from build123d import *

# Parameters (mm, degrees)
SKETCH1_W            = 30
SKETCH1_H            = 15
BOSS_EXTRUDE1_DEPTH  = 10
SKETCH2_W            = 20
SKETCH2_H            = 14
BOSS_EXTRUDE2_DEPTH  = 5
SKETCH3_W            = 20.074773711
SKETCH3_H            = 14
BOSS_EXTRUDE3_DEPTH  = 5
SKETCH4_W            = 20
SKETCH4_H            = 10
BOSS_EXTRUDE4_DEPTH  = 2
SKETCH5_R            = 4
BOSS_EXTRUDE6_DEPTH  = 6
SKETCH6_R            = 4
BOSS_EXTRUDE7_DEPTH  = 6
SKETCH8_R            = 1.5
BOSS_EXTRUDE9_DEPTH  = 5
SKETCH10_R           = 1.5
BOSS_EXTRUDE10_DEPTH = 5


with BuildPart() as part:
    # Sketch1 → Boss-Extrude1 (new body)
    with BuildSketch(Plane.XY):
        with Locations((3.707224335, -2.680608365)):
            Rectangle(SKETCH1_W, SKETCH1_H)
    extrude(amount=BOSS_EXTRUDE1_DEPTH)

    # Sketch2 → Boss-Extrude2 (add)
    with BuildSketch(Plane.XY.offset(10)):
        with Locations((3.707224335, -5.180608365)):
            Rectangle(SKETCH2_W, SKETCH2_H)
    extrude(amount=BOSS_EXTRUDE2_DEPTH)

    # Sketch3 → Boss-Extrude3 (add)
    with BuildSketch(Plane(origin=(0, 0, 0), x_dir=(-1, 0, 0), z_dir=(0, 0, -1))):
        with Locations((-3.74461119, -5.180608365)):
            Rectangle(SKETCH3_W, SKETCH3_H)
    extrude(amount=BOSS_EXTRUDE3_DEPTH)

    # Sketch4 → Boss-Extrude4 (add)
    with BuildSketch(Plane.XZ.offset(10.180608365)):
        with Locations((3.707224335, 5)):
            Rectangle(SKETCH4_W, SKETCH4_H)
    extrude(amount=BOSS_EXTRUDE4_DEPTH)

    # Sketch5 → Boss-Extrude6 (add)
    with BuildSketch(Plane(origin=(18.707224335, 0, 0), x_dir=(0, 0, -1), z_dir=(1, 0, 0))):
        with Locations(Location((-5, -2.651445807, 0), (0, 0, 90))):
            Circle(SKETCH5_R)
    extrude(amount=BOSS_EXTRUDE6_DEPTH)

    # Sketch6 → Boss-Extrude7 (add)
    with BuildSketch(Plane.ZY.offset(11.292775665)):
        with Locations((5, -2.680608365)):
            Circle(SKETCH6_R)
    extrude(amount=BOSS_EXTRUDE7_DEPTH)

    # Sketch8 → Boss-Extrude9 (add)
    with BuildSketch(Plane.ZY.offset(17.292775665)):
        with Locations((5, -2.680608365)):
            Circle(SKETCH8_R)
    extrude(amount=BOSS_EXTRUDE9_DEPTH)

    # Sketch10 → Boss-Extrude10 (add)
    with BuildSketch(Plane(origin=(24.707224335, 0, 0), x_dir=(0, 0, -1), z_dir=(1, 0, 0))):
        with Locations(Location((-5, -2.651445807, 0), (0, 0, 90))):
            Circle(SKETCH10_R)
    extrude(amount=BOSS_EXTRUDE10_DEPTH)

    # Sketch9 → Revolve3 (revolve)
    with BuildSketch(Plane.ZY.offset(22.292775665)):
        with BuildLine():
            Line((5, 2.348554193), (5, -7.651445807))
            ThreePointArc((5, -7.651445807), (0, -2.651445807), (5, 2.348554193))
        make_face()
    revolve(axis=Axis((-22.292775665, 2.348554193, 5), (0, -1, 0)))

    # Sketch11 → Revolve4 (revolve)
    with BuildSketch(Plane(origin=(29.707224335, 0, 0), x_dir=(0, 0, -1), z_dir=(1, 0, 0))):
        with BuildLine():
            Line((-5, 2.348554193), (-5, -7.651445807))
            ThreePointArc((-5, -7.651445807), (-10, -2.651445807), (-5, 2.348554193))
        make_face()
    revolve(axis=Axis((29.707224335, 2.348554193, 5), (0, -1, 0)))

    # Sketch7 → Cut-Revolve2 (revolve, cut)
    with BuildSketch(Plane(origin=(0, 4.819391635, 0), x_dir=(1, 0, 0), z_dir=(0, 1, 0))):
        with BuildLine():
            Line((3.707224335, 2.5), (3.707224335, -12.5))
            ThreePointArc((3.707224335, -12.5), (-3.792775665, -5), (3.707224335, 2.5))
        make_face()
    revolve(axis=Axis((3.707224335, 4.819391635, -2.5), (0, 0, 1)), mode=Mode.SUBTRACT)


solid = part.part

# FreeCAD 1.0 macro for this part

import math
import FreeCAD as App
import Part
import Sketcher

V = App.Vector


def add_polygon(sketch, points):
    """Adds a closed chain of lines whose ends are joined by coincident constraints."""
    first, n = sketch.GeometryCount, len(points)
    for a, b in zip(points, points[1:] + points[:1]):
        sketch.addGeometry(Part.LineSegment(App.Vector(*a, 0), App.Vector(*b, 0)), False)
    for i in range(n):
        sketch.addConstraint(Sketcher.Constraint("Coincident", first + i, 2, first + (i + 1) % n, 1))

doc = App.newDocument("Part")
params = doc.addObject("Spreadsheet::Sheet", "Params")
for row, (alias, value) in enumerate([
    ("sketch1_width", "30 mm"),
    ("sketch1_height", "15 mm"),
    ("pad1_length", "10 mm"),
    ("sketch2_width", "20 mm"),
    ("sketch2_height", "14 mm"),
    ("pad2_length", "5 mm"),
    ("sketch3_height", "14 mm"),
    ("pad3_length", "5 mm"),
    ("sketch4_width", "20 mm"),
    ("sketch4_height", "10 mm"),
    ("pad4_length", "2 mm"),
    ("sketch5_diameter", "8 mm"),
    ("pad5_length", "6 mm"),
    ("sketch6_diameter", "8 mm"),
    ("pad6_length", "6 mm"),
    ("sketch7_diameter", "3 mm"),
    ("pad7_length", "5 mm"),
    ("sketch8_diameter", "3 mm"),
    ("pad8_length", "5 mm"),
    ("sketch9_radius", "5 mm"),
    ("revolution_angle", "360 deg"),
    ("sketch10_radius", "5 mm"),
    ("revolution2_angle", "360 deg"),
    ("sketch11_radius", "7.5 mm"),
    ("groove_angle", "360 deg"),
], start=1):
    params.set(f"A{row}", alias)
    params.set(f"B{row}", "=" + value)
    params.setAlias(f"B{row}", alias)

body = doc.addObject("PartDesign::Body", "Body")

# Sketch on XY plane
sketch1 = body.newObject("Sketcher::SketchObject", "Sketch")
sketch1.AttachmentSupport = (doc.getObject("XY_Plane"), [""])
sketch1.MapMode = "FlatFace"
add_polygon(sketch1, [(-11.292776, 4.819392), (-11.292776, -10.180608), (18.707224, -10.180608), (18.707224, 4.819392)])  # lines 0-3
sketch1.addConstraint(Sketcher.Constraint("Vertical", 0))
sketch1.addConstraint(Sketcher.Constraint("Horizontal", 1))
sketch1.addConstraint(Sketcher.Constraint("Vertical", 2))
sketch1.addConstraint(Sketcher.Constraint("Horizontal", 3))
sketch1.addConstraint(Sketcher.Constraint("DistanceX", 1, 1, 1, 2, 30.0))
sketch1.addConstraint(Sketcher.Constraint("DistanceY", 0, 2, 0, 1, 15.0))
sketch1.addConstraint(Sketcher.Constraint("DistanceY", 0, 2, -1, 1, 10.180608))
sketch1.addConstraint(Sketcher.Constraint("DistanceX", 0, 2, -1, 1, 11.292776))
sketch1.setExpression("Constraints[8]", "Params.sketch1_width")
sketch1.setExpression("Constraints[9]", "Params.sketch1_height")
pad1 = body.newObject("PartDesign::Pad", "Pad")
pad1.Profile = sketch1
pad1.setExpression("Length", "Params.pad1_length")

# Sketch on XY plane
sketch2 = body.newObject("Sketcher::SketchObject", "Sketch001")
sketch2.AttachmentSupport = (doc.getObject("XY_Plane"), [""])
sketch2.MapMode = "FlatFace"
sketch2.AttachmentOffset = App.Placement(V(0, 0, 10), App.Rotation())
add_polygon(sketch2, [(-6.292776, 1.819392), (-6.292776, -12.180608), (13.707224, -12.180608), (13.707224, 1.819392)])  # lines 0-3
sketch2.addConstraint(Sketcher.Constraint("Vertical", 0))
sketch2.addConstraint(Sketcher.Constraint("Horizontal", 1))
sketch2.addConstraint(Sketcher.Constraint("Vertical", 2))
sketch2.addConstraint(Sketcher.Constraint("Horizontal", 3))
sketch2.addConstraint(Sketcher.Constraint("DistanceX", 1, 1, 1, 2, 20.0))
sketch2.addConstraint(Sketcher.Constraint("DistanceY", 0, 2, 0, 1, 14.0))
sketch2.addConstraint(Sketcher.Constraint("DistanceY", 0, 2, -1, 1, 12.180608))
sketch2.addConstraint(Sketcher.Constraint("DistanceX", 0, 2, -1, 1, 6.292776))
sketch2.setExpression("Constraints[8]", "Params.sketch2_width")
sketch2.setExpression("Constraints[9]", "Params.sketch2_height")
pad2 = body.newObject("PartDesign::Pad", "Pad001")
pad2.Profile = sketch2
pad2.setExpression("Length", "Params.pad2_length")

# Sketch on XY plane
sketch3 = body.newObject("Sketcher::SketchObject", "Sketch002")
sketch3.AttachmentSupport = (doc.getObject("XY_Plane"), [""])
sketch3.MapMode = "FlatFace"
add_polygon(sketch3, [(13.781998, 1.819392), (13.781998, -12.180608), (-6.292776, -12.180608), (-6.292776, 1.819392)])  # lines 0-3
sketch3.addConstraint(Sketcher.Constraint("Vertical", 0))
sketch3.addConstraint(Sketcher.Constraint("Horizontal", 1))
sketch3.addConstraint(Sketcher.Constraint("Vertical", 2))
sketch3.addConstraint(Sketcher.Constraint("Horizontal", 3))
sketch3.addConstraint(Sketcher.Constraint("DistanceY", 0, 2, 0, 1, 14.0))
sketch3.addConstraint(Sketcher.Constraint("DistanceX", -1, 1, 0, 2, 13.781998))
sketch3.addConstraint(Sketcher.Constraint("DistanceX", 1, 2, 1, 1, 20.074774))
sketch3.addConstraint(Sketcher.Constraint("DistanceY", 0, 2, -1, 1, 12.180608))
sketch3.setExpression("Constraints[8]", "Params.sketch3_height")
pad3 = body.newObject("PartDesign::Pad", "Pad002")
pad3.Profile = sketch3
pad3.setExpression("Length", "Params.pad3_length")
pad3.Reversed = True

# Sketch on XZ plane
sketch4 = body.newObject("Sketcher::SketchObject", "Sketch003")
sketch4.AttachmentSupport = (doc.getObject("XZ_Plane"), [""])
sketch4.MapMode = "FlatFace"
sketch4.AttachmentOffset = App.Placement(V(0, 0, 10.180608), App.Rotation())
add_polygon(sketch4, [(-6.292776, 10), (-6.292776, 0), (13.707224, 0), (13.707224, 10)])  # lines 0-3
sketch4.addConstraint(Sketcher.Constraint("Vertical", 0))
sketch4.addConstraint(Sketcher.Constraint("Horizontal", 1))
sketch4.addConstraint(Sketcher.Constraint("Vertical", 2))
sketch4.addConstraint(Sketcher.Constraint("Horizontal", 3))
sketch4.addConstraint(Sketcher.Constraint("PointOnObject", 0, 2, -1))
sketch4.addConstraint(Sketcher.Constraint("DistanceX", 1, 1, 1, 2, 20.0))
sketch4.addConstraint(Sketcher.Constraint("DistanceY", 0, 2, 0, 1, 10.0))
sketch4.addConstraint(Sketcher.Constraint("DistanceX", 0, 2, -1, 1, 6.292776))
sketch4.setExpression("Constraints[9]", "Params.sketch4_width")
sketch4.setExpression("Constraints[10]", "Params.sketch4_height")
pad4 = body.newObject("PartDesign::Pad", "Pad003")
pad4.Profile = sketch4
pad4.setExpression("Length", "Params.pad4_length")

# Sketch on YZ plane
sketch5 = body.newObject("Sketcher::SketchObject", "Sketch004")
sketch5.AttachmentSupport = (doc.getObject("YZ_Plane"), [""])
sketch5.MapMode = "FlatFace"
sketch5.AttachmentOffset = App.Placement(V(0, 0, 18.707224), App.Rotation())
sketch5.addGeometry(Part.Circle(V(-2.651446, 5, 0), V(0, 0, 1), 4), False)
sketch5.addConstraint(Sketcher.Constraint("Diameter", 0, 8.0))
sketch5.addConstraint(Sketcher.Constraint("DistanceY", -1, 1, 0, 3, 5.0))
sketch5.addConstraint(Sketcher.Constraint("DistanceX", 0, 3, -1, 1, 2.651446))
sketch5.setExpression("Constraints[0]", "Params.sketch5_diameter")
pad5 = body.newObject("PartDesign::Pad", "Pad004")
pad5.Profile = sketch5
pad5.setExpression("Length", "Params.pad5_length")

# Sketch on YZ plane
sketch6 = body.newObject("Sketcher::SketchObject", "Sketch005")
sketch6.AttachmentSupport = (doc.getObject("YZ_Plane"), [""])
sketch6.MapMode = "FlatFace"
sketch6.AttachmentOffset = App.Placement(V(0, 0, -11.292776), App.Rotation())
sketch6.addGeometry(Part.Circle(V(-2.680608, 5, 0), V(0, 0, 1), 4), False)
sketch6.addConstraint(Sketcher.Constraint("Diameter", 0, 8.0))
sketch6.addConstraint(Sketcher.Constraint("DistanceY", -1, 1, 0, 3, 5.0))
sketch6.addConstraint(Sketcher.Constraint("DistanceX", 0, 3, -1, 1, 2.680608))
sketch6.setExpression("Constraints[0]", "Params.sketch6_diameter")
pad6 = body.newObject("PartDesign::Pad", "Pad005")
pad6.Profile = sketch6
pad6.setExpression("Length", "Params.pad6_length")
pad6.Reversed = True

# Sketch on YZ plane
sketch7 = body.newObject("Sketcher::SketchObject", "Sketch006")
sketch7.AttachmentSupport = (doc.getObject("YZ_Plane"), [""])
sketch7.MapMode = "FlatFace"
sketch7.AttachmentOffset = App.Placement(V(0, 0, -17.292776), App.Rotation())
sketch7.addGeometry(Part.Circle(V(-2.680608, 5, 0), V(0, 0, 1), 1.5), False)
sketch7.addConstraint(Sketcher.Constraint("Diameter", 0, 3.0))
sketch7.addConstraint(Sketcher.Constraint("DistanceY", -1, 1, 0, 3, 5.0))
sketch7.addConstraint(Sketcher.Constraint("DistanceX", 0, 3, -1, 1, 2.680608))
sketch7.setExpression("Constraints[0]", "Params.sketch7_diameter")
pad7 = body.newObject("PartDesign::Pad", "Pad006")
pad7.Profile = sketch7
pad7.setExpression("Length", "Params.pad7_length")
pad7.Reversed = True

# Sketch on YZ plane
sketch8 = body.newObject("Sketcher::SketchObject", "Sketch007")
sketch8.AttachmentSupport = (doc.getObject("YZ_Plane"), [""])
sketch8.MapMode = "FlatFace"
sketch8.AttachmentOffset = App.Placement(V(0, 0, 24.707224), App.Rotation())
sketch8.addGeometry(Part.Circle(V(-2.651446, 5, 0), V(0, 0, 1), 1.5), False)
sketch8.addConstraint(Sketcher.Constraint("Diameter", 0, 3.0))
sketch8.addConstraint(Sketcher.Constraint("DistanceY", -1, 1, 0, 3, 5.0))
sketch8.addConstraint(Sketcher.Constraint("DistanceX", 0, 3, -1, 1, 2.651446))
sketch8.setExpression("Constraints[0]", "Params.sketch8_diameter")
pad8 = body.newObject("PartDesign::Pad", "Pad007")
pad8.Profile = sketch8
pad8.setExpression("Length", "Params.pad8_length")

# Sketch on YZ plane
sketch9 = body.newObject("Sketcher::SketchObject", "Sketch008")
sketch9.AttachmentSupport = (doc.getObject("YZ_Plane"), [""])
sketch9.MapMode = "FlatFace"
sketch9.AttachmentOffset = App.Placement(V(0, 0, -22.292776), App.Rotation())
sketch9.addGeometry(Part.LineSegment(V(-7.651446, 5, 0), V(2.348554, 5, 0)), False)
sketch9.addGeometry(Part.ArcOfCircle(Part.Circle(V(-2.651446, 5, 0), V(0, 0, 1), 5), math.radians(180), math.radians(360)), False)
sketch9.addGeometry(Part.LineSegment(V(2.348554, 5, 0), V(-7.651446, 5, 0)), True)  # axis
sketch9.addConstraint(Sketcher.Constraint("Coincident", 0, 1, 1, 1))
sketch9.addConstraint(Sketcher.Constraint("Coincident", 1, 2, 0, 2))
sketch9.addConstraint(Sketcher.Constraint("Horizontal", 0))
sketch9.addConstraint(Sketcher.Constraint("Horizontal", 2))
sketch9.addConstraint(Sketcher.Constraint("Coincident", 2, 1, 1, 2))
sketch9.addConstraint(Sketcher.Constraint("Horizontal", 1, 3, 0, 1))
sketch9.addConstraint(Sketcher.Constraint("Equal", 0, 2))
sketch9.addConstraint(Sketcher.Constraint("Radius", 1, 5.0))
sketch9.addConstraint(Sketcher.Constraint("DistanceY", -1, 1, 1, 3, 5.0))
sketch9.addConstraint(Sketcher.Constraint("DistanceX", 1, 3, -1, 1, 2.651446))
sketch9.setExpression("Constraints[7]", "Params.sketch9_radius")
revolution = body.newObject("PartDesign::Revolution", "Revolution")
revolution.Profile = sketch9
revolution.ReferenceAxis = (sketch9, ["Axis0"])
revolution.setExpression("Angle", "Params.revolution_angle")

# Sketch on YZ plane
sketch10 = body.newObject("Sketcher::SketchObject", "Sketch009")
sketch10.AttachmentSupport = (doc.getObject("YZ_Plane"), [""])
sketch10.MapMode = "FlatFace"
sketch10.AttachmentOffset = App.Placement(V(0, 0, 29.707224), App.Rotation())
sketch10.addGeometry(Part.LineSegment(V(-7.651446, 5, 0), V(2.348554, 5, 0)), False)
sketch10.addGeometry(Part.ArcOfCircle(Part.Circle(V(-2.651446, 5, 0), V(0, 0, 1), 5), math.radians(0), math.radians(180)), False)
sketch10.addGeometry(Part.LineSegment(V(2.348554, 5, 0), V(-7.651446, 5, 0)), True)  # axis
sketch10.addConstraint(Sketcher.Constraint("Coincident", 0, 1, 1, 2))
sketch10.addConstraint(Sketcher.Constraint("Coincident", 1, 1, 0, 2))
sketch10.addConstraint(Sketcher.Constraint("Horizontal", 0))
sketch10.addConstraint(Sketcher.Constraint("Horizontal", 2))
sketch10.addConstraint(Sketcher.Constraint("Coincident", 2, 1, 1, 1))
sketch10.addConstraint(Sketcher.Constraint("Horizontal", 1, 3, 0, 1))
sketch10.addConstraint(Sketcher.Constraint("Equal", 0, 2))
sketch10.addConstraint(Sketcher.Constraint("Radius", 1, 5.0))
sketch10.addConstraint(Sketcher.Constraint("DistanceY", -1, 1, 1, 3, 5.0))
sketch10.addConstraint(Sketcher.Constraint("DistanceX", 1, 3, -1, 1, 2.651446))
sketch10.setExpression("Constraints[7]", "Params.sketch10_radius")
revolution2 = body.newObject("PartDesign::Revolution", "Revolution001")
revolution2.Profile = sketch10
revolution2.ReferenceAxis = (sketch10, ["Axis0"])
revolution2.setExpression("Angle", "Params.revolution2_angle")

# Sketch on XZ plane
sketch11 = body.newObject("Sketcher::SketchObject", "Sketch010")
sketch11.AttachmentSupport = (doc.getObject("XZ_Plane"), [""])
sketch11.MapMode = "FlatFace"
sketch11.AttachmentOffset = App.Placement(V(0, 0, -4.819392), App.Rotation())
sketch11.addGeometry(Part.LineSegment(V(3.707224, 12.5, 0), V(3.707224, -2.5, 0)), False)
sketch11.addGeometry(Part.ArcOfCircle(Part.Circle(V(3.707224, 5, 0), V(0, 0, 1), 7.5), math.radians(90), math.radians(270)), False)
sketch11.addGeometry(Part.LineSegment(V(3.707224, -2.5, 0), V(3.707224, 12.5, 0)), True)  # axis
sketch11.addConstraint(Sketcher.Constraint("Coincident", 0, 1, 1, 1))
sketch11.addConstraint(Sketcher.Constraint("Coincident", 1, 2, 0, 2))
sketch11.addConstraint(Sketcher.Constraint("Vertical", 0))
sketch11.addConstraint(Sketcher.Constraint("Vertical", 2))
sketch11.addConstraint(Sketcher.Constraint("Coincident", 2, 1, 1, 2))
sketch11.addConstraint(Sketcher.Constraint("Vertical", 1, 3, 0, 1))
sketch11.addConstraint(Sketcher.Constraint("Equal", 0, 2))
sketch11.addConstraint(Sketcher.Constraint("Radius", 1, 7.5))
sketch11.addConstraint(Sketcher.Constraint("DistanceY", -1, 1, 1, 3, 5.0))
sketch11.addConstraint(Sketcher.Constraint("DistanceX", -1, 1, 1, 3, 3.707224))
sketch11.setExpression("Constraints[7]", "Params.sketch11_radius")
groove = body.newObject("PartDesign::Groove", "Groove")
groove.Profile = sketch11
groove.ReferenceAxis = (sketch11, ["Axis0"])
groove.setExpression("Angle", "Params.groove_angle")

doc.recompute()
